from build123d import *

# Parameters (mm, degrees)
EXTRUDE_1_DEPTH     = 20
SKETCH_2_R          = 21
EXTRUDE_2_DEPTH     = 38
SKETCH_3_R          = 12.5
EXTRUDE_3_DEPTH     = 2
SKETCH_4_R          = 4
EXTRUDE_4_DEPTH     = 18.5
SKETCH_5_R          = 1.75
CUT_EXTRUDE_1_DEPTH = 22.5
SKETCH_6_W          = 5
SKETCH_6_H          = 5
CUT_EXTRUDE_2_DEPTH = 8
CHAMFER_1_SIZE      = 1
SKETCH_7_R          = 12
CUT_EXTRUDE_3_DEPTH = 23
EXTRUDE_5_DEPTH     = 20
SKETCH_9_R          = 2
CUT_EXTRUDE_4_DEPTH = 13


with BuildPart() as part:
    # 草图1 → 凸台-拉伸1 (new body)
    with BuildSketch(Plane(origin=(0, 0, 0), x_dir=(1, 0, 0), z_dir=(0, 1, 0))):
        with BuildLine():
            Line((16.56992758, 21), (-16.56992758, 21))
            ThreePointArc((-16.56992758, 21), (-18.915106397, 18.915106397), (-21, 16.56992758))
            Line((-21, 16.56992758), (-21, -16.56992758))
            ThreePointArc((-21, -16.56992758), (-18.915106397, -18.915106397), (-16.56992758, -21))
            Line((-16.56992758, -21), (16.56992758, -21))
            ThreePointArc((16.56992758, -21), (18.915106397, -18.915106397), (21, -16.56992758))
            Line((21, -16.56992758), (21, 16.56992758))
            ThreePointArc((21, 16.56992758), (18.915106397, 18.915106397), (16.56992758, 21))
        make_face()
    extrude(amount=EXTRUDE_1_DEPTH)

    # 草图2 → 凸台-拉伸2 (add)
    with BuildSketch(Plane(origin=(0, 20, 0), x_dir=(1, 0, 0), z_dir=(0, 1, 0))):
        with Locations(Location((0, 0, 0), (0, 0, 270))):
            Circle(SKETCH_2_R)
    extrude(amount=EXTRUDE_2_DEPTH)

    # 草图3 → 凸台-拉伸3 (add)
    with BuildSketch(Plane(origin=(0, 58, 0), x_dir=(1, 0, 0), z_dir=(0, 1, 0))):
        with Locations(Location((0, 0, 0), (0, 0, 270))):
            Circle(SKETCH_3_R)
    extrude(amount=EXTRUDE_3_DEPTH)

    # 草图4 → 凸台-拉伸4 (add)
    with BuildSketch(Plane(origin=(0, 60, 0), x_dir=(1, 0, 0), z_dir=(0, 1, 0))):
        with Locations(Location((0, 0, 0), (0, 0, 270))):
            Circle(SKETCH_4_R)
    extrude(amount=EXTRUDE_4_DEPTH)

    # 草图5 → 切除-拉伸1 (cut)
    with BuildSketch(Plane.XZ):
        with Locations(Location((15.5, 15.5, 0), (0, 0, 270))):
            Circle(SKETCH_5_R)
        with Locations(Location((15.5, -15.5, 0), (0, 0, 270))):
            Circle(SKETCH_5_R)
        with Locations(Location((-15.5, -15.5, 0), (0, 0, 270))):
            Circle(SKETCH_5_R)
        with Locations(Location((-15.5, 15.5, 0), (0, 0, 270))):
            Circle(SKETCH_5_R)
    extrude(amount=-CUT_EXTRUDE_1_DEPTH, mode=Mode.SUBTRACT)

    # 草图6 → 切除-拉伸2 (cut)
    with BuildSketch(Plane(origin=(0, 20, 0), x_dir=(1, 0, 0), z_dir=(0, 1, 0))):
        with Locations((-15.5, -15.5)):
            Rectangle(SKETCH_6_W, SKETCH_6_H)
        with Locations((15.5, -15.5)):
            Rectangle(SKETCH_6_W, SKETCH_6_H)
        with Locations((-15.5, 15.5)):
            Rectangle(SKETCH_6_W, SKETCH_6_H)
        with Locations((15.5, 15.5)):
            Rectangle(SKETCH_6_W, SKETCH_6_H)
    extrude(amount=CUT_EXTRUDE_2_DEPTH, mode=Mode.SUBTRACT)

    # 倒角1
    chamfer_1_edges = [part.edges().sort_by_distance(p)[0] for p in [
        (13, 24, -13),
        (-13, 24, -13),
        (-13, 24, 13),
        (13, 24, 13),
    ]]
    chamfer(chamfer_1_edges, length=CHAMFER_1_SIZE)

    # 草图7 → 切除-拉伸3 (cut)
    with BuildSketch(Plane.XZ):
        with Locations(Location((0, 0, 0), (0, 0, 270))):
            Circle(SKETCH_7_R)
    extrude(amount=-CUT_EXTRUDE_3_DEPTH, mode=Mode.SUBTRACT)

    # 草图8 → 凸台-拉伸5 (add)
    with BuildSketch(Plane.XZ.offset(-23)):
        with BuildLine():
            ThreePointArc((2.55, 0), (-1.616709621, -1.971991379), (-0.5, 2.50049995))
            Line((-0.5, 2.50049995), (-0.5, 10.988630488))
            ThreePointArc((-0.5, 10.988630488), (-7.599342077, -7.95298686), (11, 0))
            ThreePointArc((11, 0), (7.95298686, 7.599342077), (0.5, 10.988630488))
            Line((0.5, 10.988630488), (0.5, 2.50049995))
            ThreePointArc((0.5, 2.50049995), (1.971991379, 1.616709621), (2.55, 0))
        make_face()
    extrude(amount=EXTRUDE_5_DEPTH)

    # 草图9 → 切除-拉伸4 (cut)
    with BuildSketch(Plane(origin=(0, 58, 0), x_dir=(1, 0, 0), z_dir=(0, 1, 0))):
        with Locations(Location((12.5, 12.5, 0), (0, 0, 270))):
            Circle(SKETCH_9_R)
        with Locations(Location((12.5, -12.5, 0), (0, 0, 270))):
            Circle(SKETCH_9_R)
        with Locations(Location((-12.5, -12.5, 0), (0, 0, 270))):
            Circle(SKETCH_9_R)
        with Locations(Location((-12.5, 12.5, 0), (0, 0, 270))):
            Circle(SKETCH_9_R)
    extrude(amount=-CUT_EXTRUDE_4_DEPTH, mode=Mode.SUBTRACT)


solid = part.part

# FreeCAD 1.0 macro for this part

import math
import FreeCAD as App
import Part
import Sketcher
from FreeCAD import Vector
Q = App.Units.Quantity


def edges_at(feature, points):
    """Names of the edges that pass closest to the given points."""
    edges = feature.Shape.Edges
    near = lambda p: min(range(len(edges)), key=lambda i: edges[i].distToShape(Part.Vertex(*p))[0])
    return sorted({f"Edge{near(p) + 1}" for p in points})

doc = App.newDocument("Part")
body = doc.addObject("PartDesign::Body", "Body")

# Sketch on XZ plane
sketch1 = body.newObject("Sketcher::SketchObject", "Sketch")
sketch1.AttachmentSupport = (doc.getObject("XZ_Plane"), [""])
sketch1.MapMode = "FlatFace"
sketch1.addGeometry([
    Part.LineSegment(Vector(17, -21, 0), Vector(-17, -21, 0)),  # 0
    Part.ArcOfCircle(Part.Circle(Vector(0, 0, 0), Vector(0, 0, 1), 27), math.radians(-141.73), math.radians(-128.27)),  # 1
    Part.LineSegment(Vector(-21, -17, 0), Vector(-21, 17, 0)),  # 2
    Part.ArcOfCircle(Part.Circle(Vector(0, 0, 0), Vector(0, 0, 1), 27), math.radians(128.27), math.radians(141.73)),  # 3
    Part.LineSegment(Vector(-17, 21, 0), Vector(17, 21, 0)),  # 4
    Part.ArcOfCircle(Part.Circle(Vector(0, 0, 0), Vector(0, 0, 1), 27), math.radians(38.27), math.radians(51.73)),  # 5
    Part.LineSegment(Vector(21, 17, 0), Vector(21, -17, 0)),  # 6
    Part.ArcOfCircle(Part.Circle(Vector(0, 0, 0), Vector(0, 0, 1), 27), math.radians(-51.73), math.radians(-38.27)),  # 7
], False)
sketch1.addConstraint([
    Sketcher.Constraint("Coincident", 0, 2, 1, 2),
    Sketcher.Constraint("Coincident", 1, 1, 2, 1),
    Sketcher.Constraint("Coincident", 2, 2, 3, 2),
    Sketcher.Constraint("Coincident", 3, 1, 4, 1),
    Sketcher.Constraint("Coincident", 4, 2, 5, 2),
    Sketcher.Constraint("Coincident", 5, 1, 6, 1),
    Sketcher.Constraint("Coincident", 6, 2, 7, 2),
    Sketcher.Constraint("Coincident", 7, 1, 0, 1),
    Sketcher.Constraint("Horizontal", 0),
    Sketcher.Constraint("Vertical", 2),
    Sketcher.Constraint("Horizontal", 4),
    Sketcher.Constraint("Vertical", 6),
    Sketcher.Constraint("Coincident", 1, 3, -1, 1),
    Sketcher.Constraint("Coincident", 3, 3, -1, 1),
    Sketcher.Constraint("Coincident", 5, 3, -1, 1),
    Sketcher.Constraint("Coincident", 7, 3, -1, 1),
    Sketcher.Constraint("Equal", 1, 3),
    Sketcher.Constraint("Equal", 3, 5),
    Sketcher.Constraint("Equal", 5, 7),
    Sketcher.Constraint("Horizontal", 2, 2, 5, 1),
    Sketcher.Constraint("Vertical", 0, 2, 3, 1),
    Sketcher.Constraint("Equal", 4, 2),
    Sketcher.Constraint("Radius", 1, Q("26.75 mm")),
    Sketcher.Constraint("DistanceY", 0, 2, -1, 1, Q("21 mm")),
])
pad1 = body.newObject("PartDesign::Pad", "Pad")
pad1.Profile = sketch1
pad1.Length = 20
pad1.Reversed = True

# Sketch on XZ plane
sketch2 = body.newObject("Sketcher::SketchObject", "Sketch001")
sketch2.AttachmentSupport = (doc.getObject("XZ_Plane"), [""])
sketch2.MapMode = "FlatFace"
sketch2.AttachmentOffset = App.Placement(Vector(0, 0, -20), App.Rotation())
sketch2.addGeometry(Part.Circle(Vector(0, 0, 0), Vector(0, 0, 1), 21), False)
sketch2.addConstraint([
    Sketcher.Constraint("Coincident", 0, 3, -1, 1),
    Sketcher.Constraint("Diameter", 0, Q("42 mm")),
])
pad2 = body.newObject("PartDesign::Pad", "Pad001")
pad2.Profile = sketch2
pad2.Length = 38
pad2.Reversed = True

# Sketch on XZ plane
sketch3 = body.newObject("Sketcher::SketchObject", "Sketch002")
sketch3.AttachmentSupport = (doc.getObject("XZ_Plane"), [""])
sketch3.MapMode = "FlatFace"
sketch3.AttachmentOffset = App.Placement(Vector(0, 0, -58), App.Rotation())
sketch3.addGeometry(Part.Circle(Vector(0, 0, 0), Vector(0, 0, 1), 12), False)
sketch3.addConstraint([
    Sketcher.Constraint("Coincident", 0, 3, -1, 1),
    Sketcher.Constraint("Diameter", 0, Q("25 mm")),
])
pad3 = body.newObject("PartDesign::Pad", "Pad002")
pad3.Profile = sketch3
pad3.Length = 2
pad3.Reversed = True

# Sketch on XZ plane
sketch4 = body.newObject("Sketcher::SketchObject", "Sketch003")
sketch4.AttachmentSupport = (doc.getObject("XZ_Plane"), [""])
sketch4.MapMode = "FlatFace"
sketch4.AttachmentOffset = App.Placement(Vector(0, 0, -60), App.Rotation())
sketch4.addGeometry(Part.Circle(Vector(0, 0, 0), Vector(0, 0, 1), 4), False)
sketch4.addConstraint([
    Sketcher.Constraint("Coincident", 0, 3, -1, 1),
    Sketcher.Constraint("Diameter", 0, Q("8 mm")),
])
pad4 = body.newObject("PartDesign::Pad", "Pad003")
pad4.Profile = sketch4
pad4.Length = 18.5
pad4.Reversed = True

# Sketch on XZ plane
sketch5 = body.newObject("Sketcher::SketchObject", "Sketch004")
sketch5.AttachmentSupport = (doc.getObject("XZ_Plane"), [""])
sketch5.MapMode = "FlatFace"
sketch5.addGeometry([
    Part.Circle(Vector(15.5, 15.5, 0), Vector(0, 0, 1), 1.8),
    Part.Circle(Vector(15.5, -15.5, 0), Vector(0, 0, 1), 1.8),
    Part.Circle(Vector(-15.5, -15.5, 0), Vector(0, 0, 1), 1.8),
    Part.Circle(Vector(-15.5, 15.5, 0), Vector(0, 0, 1), 1.8),
], False)
sketch5.addConstraint([
    Sketcher.Constraint("Equal", 0, 1),
    Sketcher.Constraint("Equal", 1, 2),
    Sketcher.Constraint("Equal", 2, 3),
    Sketcher.Constraint("Symmetric", 0, 3, 2, 3, -1, 1),
    Sketcher.Constraint("Symmetric", 1, 3, 3, 3, -1, 1),
    Sketcher.Constraint("Symmetric", 1, 3, 2, 3, -2),
    Sketcher.Constraint("Diameter", 0, Q("3.5 mm")),
    Sketcher.Constraint("DistanceY", 1, 3, 0, 3, Q("31 mm")),
    Sketcher.Constraint("DistanceX", 2, 3, 1, 3, Q("31 mm")),
])
pocket1 = body.newObject("PartDesign::Pocket", "Pocket")
pocket1.Profile = sketch5
pocket1.Length = 22.5

# Sketch on XZ plane
sketch6 = body.newObject("Sketcher::SketchObject", "Sketch005")
sketch6.AttachmentSupport = (doc.getObject("XZ_Plane"), [""])
sketch6.MapMode = "FlatFace"
sketch6.AttachmentOffset = App.Placement(Vector(0, 0, -20), App.Rotation())
sketch6.addGeometry([
    Part.LineSegment(Vector(-18, 13, 0), Vector(-18, 18, 0)),  # 0
    Part.LineSegment(Vector(-18, 18, 0), Vector(-13, 18, 0)),  # 1
    Part.LineSegment(Vector(-13, 18, 0), Vector(-13, 13, 0)),  # 2
    Part.LineSegment(Vector(-13, 13, 0), Vector(-18, 13, 0)),  # 3
    Part.LineSegment(Vector(13, 13, 0), Vector(13, 18, 0)),  # 4
    Part.LineSegment(Vector(13, 18, 0), Vector(18, 18, 0)),  # 5
    Part.LineSegment(Vector(18, 18, 0), Vector(18, 13, 0)),  # 6
    Part.LineSegment(Vector(18, 13, 0), Vector(13, 13, 0)),  # 7
    Part.LineSegment(Vector(-18, -18, 0), Vector(-18, -13, 0)),  # 8
    Part.LineSegment(Vector(-18, -13, 0), Vector(-13, -13, 0)),  # 9
    Part.LineSegment(Vector(-13, -13, 0), Vector(-13, -18, 0)),  # 10
    Part.LineSegment(Vector(-13, -18, 0), Vector(-18, -18, 0)),  # 11
    Part.LineSegment(Vector(13, -18, 0), Vector(13, -13, 0)),  # 12
    Part.LineSegment(Vector(13, -13, 0), Vector(18, -13, 0)),  # 13
    Part.LineSegment(Vector(18, -13, 0), Vector(18, -18, 0)),  # 14
    Part.LineSegment(Vector(18, -18, 0), Vector(13, -18, 0)),  # 15
], False)
sketch6.addConstraint([
    Sketcher.Constraint("Coincident", 0, 2, 1, 1),
    Sketcher.Constraint("Coincident", 1, 2, 2, 1),
    Sketcher.Constraint("Coincident", 2, 2, 3, 1),
    Sketcher.Constraint("Coincident", 3, 2, 0, 1),
    Sketcher.Constraint("Coincident", 4, 2, 5, 1),
    Sketcher.Constraint("Coincident", 5, 2, 6, 1),
    Sketcher.Constraint("Coincident", 6, 2, 7, 1),
    Sketcher.Constraint("Coincident", 7, 2, 4, 1),
    Sketcher.Constraint("Coincident", 8, 2, 9, 1),
    Sketcher.Constraint("Coincident", 9, 2, 10, 1),
    Sketcher.Constraint("Coincident", 10, 2, 11, 1),
    Sketcher.Constraint("Coincident", 11, 2, 8, 1),
    Sketcher.Constraint("Coincident", 12, 2, 13, 1),
    Sketcher.Constraint("Coincident", 13, 2, 14, 1),
    Sketcher.Constraint("Coincident", 14, 2, 15, 1),
    Sketcher.Constraint("Coincident", 15, 2, 12, 1),
    Sketcher.Constraint("Vertical", 0),
    Sketcher.Constraint("Horizontal", 1),
    Sketcher.Constraint("Vertical", 2),
    Sketcher.Constraint("Horizontal", 3),
    Sketcher.Constraint("Vertical", 4),
    Sketcher.Constraint("Horizontal", 5),
    Sketcher.Constraint("Vertical", 6),
    Sketcher.Constraint("Horizontal", 7),
    Sketcher.Constraint("Vertical", 8),
    Sketcher.Constraint("Horizontal", 9),
    Sketcher.Constraint("Vertical", 10),
    Sketcher.Constraint("Horizontal", 11),
    Sketcher.Constraint("Vertical", 12),
    Sketcher.Constraint("Horizontal", 13),
    Sketcher.Constraint("Vertical", 14),
    Sketcher.Constraint("Horizontal", 15),
    Sketcher.Constraint("Symmetric", 6, 2, 8, 2, -1, 1),
    Sketcher.Constraint("Symmetric", 4, 2, 10, 2, -1, 1),
    Sketcher.Constraint("Symmetric", 2, 2, 12, 2, -1, 1),
    Sketcher.Constraint("Symmetric", 0, 2, 14, 2, -1, 1),
    Sketcher.Constraint("Symmetric", 1, 2, 4, 2, -2),
    Sketcher.Constraint("Symmetric", 3, 2, 6, 2, -2),
    Sketcher.Constraint("Equal", 15, 0),
    Sketcher.Constraint("DistanceX", 1, 1, 1, 2, Q("5 mm")),
    Sketcher.Constraint("DistanceX", 0, 2, -1, 1, Q("18 mm")),
    Sketcher.Constraint("DistanceY", -1, 1, 0, 2, Q("18 mm")),
])
pocket2 = body.newObject("PartDesign::Pocket", "Pocket001")
pocket2.Profile = sketch6
pocket2.Length = 8
doc.recompute()

chamfer = body.newObject("PartDesign::Chamfer", "Chamfer")
chamfer.Base = (pocket2, edges_at(pocket2, [
    (13, 24, -13),
    (-13, 24, -13),
    (-13, 24, 13),
    (13, 24, 13),
]))
chamfer.Size = 1

# Sketch on XZ plane
sketch7 = body.newObject("Sketcher::SketchObject", "Sketch006")
sketch7.AttachmentSupport = (doc.getObject("XZ_Plane"), [""])
sketch7.MapMode = "FlatFace"
sketch7.addGeometry(Part.Circle(Vector(0, 0, 0), Vector(0, 0, 1), 12), False)
sketch7.addConstraint([
    Sketcher.Constraint("Coincident", 0, 3, -1, 1),
    Sketcher.Constraint("Diameter", 0, Q("24 mm")),
])
pocket3 = body.newObject("PartDesign::Pocket", "Pocket002")
pocket3.Profile = sketch7
pocket3.Length = 23

# Sketch on XZ plane
sketch8 = body.newObject("Sketcher::SketchObject", "Sketch007")
sketch8.AttachmentSupport = (doc.getObject("XZ_Plane"), [""])
sketch8.MapMode = "FlatFace"
sketch8.AttachmentOffset = App.Placement(Vector(0, 0, -23), App.Rotation())
sketch8.addGeometry([
    Part.ArcOfCircle(Part.Circle(Vector(0, 0, 0), Vector(0, 0, 1), 2.5), math.radians(101), math.radians(360)),  # 0
    Part.LineSegment(Vector(-0.5, 2.5, 0), Vector(-0.5, 11, 0)),  # 1
    Part.ArcOfCircle(Part.Circle(Vector(0, 0, 0), Vector(0, 0, 1), 11), math.radians(93), math.radians(360)),  # 2
    Part.ArcOfCircle(Part.Circle(Vector(0, 0, 0), Vector(0, 0, 1), 11), math.radians(0), math.radians(87)),  # 3
    Part.LineSegment(Vector(0.5, 11, 0), Vector(0.5, 2.5, 0)),  # 4
    Part.ArcOfCircle(Part.Circle(Vector(0, 0, 0), Vector(0, 0, 1), 2.6), math.radians(0), math.radians(79)),  # 5
], False)
sketch8.addConstraint([
    Sketcher.Constraint("Coincident", 0, 1, 1, 1),
    Sketcher.Constraint("Coincident", 1, 2, 2, 1),
    Sketcher.Constraint("Tangent", 2, 2, 3, 1),
    Sketcher.Constraint("Coincident", 3, 2, 4, 1),
    Sketcher.Constraint("Coincident", 4, 2, 5, 2),
    Sketcher.Constraint("Tangent", 5, 1, 0, 2),
    Sketcher.Constraint("Vertical", 1),
    Sketcher.Constraint("Vertical", 4),
    Sketcher.Constraint("Coincident", 0, 3, -1, 1),
    Sketcher.Constraint("Coincident", 2, 3, -1, 1),
    Sketcher.Constraint("Equal", 2, 3),
    Sketcher.Constraint("Equal", 0, 5),
    Sketcher.Constraint("PointOnObject", 2, 2, -1),
    Sketcher.Constraint("PointOnObject", 5, 1, -1),
    Sketcher.Constraint("Horizontal", 1, 2, 3, 2),
    Sketcher.Constraint("Radius", 2, Q("11 mm")),
    Sketcher.Constraint("Radius", 0, Q("2.55 mm")),
    Sketcher.Constraint("DistanceX", 1, 2, 3, 2, Q("1 mm")),
])
pad5 = body.newObject("PartDesign::Pad", "Pad004")
pad5.Profile = sketch8
pad5.Length = 20

# Sketch on XZ plane
sketch9 = body.newObject("Sketcher::SketchObject", "Sketch008")
sketch9.AttachmentSupport = (doc.getObject("XZ_Plane"), [""])
sketch9.MapMode = "FlatFace"
sketch9.AttachmentOffset = App.Placement(Vector(0, 0, -58), App.Rotation())
sketch9.addGeometry([
    Part.Circle(Vector(12.5, -12.5, 0), Vector(0, 0, 1), 2),
    Part.Circle(Vector(12.5, 12.5, 0), Vector(0, 0, 1), 2),
    Part.Circle(Vector(-12.5, 12.5, 0), Vector(0, 0, 1), 2),
    Part.Circle(Vector(-12.5, -12.5, 0), Vector(0, 0, 1), 2),
], False)
sketch9.addConstraint([
    Sketcher.Constraint("Equal", 0, 1),
    Sketcher.Constraint("Equal", 1, 2),
    Sketcher.Constraint("Equal", 2, 3),
    Sketcher.Constraint("Symmetric", 0, 3, 2, 3, -1, 1),
    Sketcher.Constraint("Symmetric", 1, 3, 3, 3, -1, 1),
    Sketcher.Constraint("Symmetric", 1, 3, 2, 3, -2),
    Sketcher.Constraint("Diameter", 0, Q("4 mm")),
    Sketcher.Constraint("DistanceY", 0, 3, 1, 3, Q("25 mm")),
    Sketcher.Constraint("DistanceX", 2, 3, 1, 3, Q("25 mm")),
])
pocket4 = body.newObject("PartDesign::Pocket", "Pocket003")
pocket4.Profile = sketch9
pocket4.Length = 13
pocket4.Reversed = True

doc.recompute()
